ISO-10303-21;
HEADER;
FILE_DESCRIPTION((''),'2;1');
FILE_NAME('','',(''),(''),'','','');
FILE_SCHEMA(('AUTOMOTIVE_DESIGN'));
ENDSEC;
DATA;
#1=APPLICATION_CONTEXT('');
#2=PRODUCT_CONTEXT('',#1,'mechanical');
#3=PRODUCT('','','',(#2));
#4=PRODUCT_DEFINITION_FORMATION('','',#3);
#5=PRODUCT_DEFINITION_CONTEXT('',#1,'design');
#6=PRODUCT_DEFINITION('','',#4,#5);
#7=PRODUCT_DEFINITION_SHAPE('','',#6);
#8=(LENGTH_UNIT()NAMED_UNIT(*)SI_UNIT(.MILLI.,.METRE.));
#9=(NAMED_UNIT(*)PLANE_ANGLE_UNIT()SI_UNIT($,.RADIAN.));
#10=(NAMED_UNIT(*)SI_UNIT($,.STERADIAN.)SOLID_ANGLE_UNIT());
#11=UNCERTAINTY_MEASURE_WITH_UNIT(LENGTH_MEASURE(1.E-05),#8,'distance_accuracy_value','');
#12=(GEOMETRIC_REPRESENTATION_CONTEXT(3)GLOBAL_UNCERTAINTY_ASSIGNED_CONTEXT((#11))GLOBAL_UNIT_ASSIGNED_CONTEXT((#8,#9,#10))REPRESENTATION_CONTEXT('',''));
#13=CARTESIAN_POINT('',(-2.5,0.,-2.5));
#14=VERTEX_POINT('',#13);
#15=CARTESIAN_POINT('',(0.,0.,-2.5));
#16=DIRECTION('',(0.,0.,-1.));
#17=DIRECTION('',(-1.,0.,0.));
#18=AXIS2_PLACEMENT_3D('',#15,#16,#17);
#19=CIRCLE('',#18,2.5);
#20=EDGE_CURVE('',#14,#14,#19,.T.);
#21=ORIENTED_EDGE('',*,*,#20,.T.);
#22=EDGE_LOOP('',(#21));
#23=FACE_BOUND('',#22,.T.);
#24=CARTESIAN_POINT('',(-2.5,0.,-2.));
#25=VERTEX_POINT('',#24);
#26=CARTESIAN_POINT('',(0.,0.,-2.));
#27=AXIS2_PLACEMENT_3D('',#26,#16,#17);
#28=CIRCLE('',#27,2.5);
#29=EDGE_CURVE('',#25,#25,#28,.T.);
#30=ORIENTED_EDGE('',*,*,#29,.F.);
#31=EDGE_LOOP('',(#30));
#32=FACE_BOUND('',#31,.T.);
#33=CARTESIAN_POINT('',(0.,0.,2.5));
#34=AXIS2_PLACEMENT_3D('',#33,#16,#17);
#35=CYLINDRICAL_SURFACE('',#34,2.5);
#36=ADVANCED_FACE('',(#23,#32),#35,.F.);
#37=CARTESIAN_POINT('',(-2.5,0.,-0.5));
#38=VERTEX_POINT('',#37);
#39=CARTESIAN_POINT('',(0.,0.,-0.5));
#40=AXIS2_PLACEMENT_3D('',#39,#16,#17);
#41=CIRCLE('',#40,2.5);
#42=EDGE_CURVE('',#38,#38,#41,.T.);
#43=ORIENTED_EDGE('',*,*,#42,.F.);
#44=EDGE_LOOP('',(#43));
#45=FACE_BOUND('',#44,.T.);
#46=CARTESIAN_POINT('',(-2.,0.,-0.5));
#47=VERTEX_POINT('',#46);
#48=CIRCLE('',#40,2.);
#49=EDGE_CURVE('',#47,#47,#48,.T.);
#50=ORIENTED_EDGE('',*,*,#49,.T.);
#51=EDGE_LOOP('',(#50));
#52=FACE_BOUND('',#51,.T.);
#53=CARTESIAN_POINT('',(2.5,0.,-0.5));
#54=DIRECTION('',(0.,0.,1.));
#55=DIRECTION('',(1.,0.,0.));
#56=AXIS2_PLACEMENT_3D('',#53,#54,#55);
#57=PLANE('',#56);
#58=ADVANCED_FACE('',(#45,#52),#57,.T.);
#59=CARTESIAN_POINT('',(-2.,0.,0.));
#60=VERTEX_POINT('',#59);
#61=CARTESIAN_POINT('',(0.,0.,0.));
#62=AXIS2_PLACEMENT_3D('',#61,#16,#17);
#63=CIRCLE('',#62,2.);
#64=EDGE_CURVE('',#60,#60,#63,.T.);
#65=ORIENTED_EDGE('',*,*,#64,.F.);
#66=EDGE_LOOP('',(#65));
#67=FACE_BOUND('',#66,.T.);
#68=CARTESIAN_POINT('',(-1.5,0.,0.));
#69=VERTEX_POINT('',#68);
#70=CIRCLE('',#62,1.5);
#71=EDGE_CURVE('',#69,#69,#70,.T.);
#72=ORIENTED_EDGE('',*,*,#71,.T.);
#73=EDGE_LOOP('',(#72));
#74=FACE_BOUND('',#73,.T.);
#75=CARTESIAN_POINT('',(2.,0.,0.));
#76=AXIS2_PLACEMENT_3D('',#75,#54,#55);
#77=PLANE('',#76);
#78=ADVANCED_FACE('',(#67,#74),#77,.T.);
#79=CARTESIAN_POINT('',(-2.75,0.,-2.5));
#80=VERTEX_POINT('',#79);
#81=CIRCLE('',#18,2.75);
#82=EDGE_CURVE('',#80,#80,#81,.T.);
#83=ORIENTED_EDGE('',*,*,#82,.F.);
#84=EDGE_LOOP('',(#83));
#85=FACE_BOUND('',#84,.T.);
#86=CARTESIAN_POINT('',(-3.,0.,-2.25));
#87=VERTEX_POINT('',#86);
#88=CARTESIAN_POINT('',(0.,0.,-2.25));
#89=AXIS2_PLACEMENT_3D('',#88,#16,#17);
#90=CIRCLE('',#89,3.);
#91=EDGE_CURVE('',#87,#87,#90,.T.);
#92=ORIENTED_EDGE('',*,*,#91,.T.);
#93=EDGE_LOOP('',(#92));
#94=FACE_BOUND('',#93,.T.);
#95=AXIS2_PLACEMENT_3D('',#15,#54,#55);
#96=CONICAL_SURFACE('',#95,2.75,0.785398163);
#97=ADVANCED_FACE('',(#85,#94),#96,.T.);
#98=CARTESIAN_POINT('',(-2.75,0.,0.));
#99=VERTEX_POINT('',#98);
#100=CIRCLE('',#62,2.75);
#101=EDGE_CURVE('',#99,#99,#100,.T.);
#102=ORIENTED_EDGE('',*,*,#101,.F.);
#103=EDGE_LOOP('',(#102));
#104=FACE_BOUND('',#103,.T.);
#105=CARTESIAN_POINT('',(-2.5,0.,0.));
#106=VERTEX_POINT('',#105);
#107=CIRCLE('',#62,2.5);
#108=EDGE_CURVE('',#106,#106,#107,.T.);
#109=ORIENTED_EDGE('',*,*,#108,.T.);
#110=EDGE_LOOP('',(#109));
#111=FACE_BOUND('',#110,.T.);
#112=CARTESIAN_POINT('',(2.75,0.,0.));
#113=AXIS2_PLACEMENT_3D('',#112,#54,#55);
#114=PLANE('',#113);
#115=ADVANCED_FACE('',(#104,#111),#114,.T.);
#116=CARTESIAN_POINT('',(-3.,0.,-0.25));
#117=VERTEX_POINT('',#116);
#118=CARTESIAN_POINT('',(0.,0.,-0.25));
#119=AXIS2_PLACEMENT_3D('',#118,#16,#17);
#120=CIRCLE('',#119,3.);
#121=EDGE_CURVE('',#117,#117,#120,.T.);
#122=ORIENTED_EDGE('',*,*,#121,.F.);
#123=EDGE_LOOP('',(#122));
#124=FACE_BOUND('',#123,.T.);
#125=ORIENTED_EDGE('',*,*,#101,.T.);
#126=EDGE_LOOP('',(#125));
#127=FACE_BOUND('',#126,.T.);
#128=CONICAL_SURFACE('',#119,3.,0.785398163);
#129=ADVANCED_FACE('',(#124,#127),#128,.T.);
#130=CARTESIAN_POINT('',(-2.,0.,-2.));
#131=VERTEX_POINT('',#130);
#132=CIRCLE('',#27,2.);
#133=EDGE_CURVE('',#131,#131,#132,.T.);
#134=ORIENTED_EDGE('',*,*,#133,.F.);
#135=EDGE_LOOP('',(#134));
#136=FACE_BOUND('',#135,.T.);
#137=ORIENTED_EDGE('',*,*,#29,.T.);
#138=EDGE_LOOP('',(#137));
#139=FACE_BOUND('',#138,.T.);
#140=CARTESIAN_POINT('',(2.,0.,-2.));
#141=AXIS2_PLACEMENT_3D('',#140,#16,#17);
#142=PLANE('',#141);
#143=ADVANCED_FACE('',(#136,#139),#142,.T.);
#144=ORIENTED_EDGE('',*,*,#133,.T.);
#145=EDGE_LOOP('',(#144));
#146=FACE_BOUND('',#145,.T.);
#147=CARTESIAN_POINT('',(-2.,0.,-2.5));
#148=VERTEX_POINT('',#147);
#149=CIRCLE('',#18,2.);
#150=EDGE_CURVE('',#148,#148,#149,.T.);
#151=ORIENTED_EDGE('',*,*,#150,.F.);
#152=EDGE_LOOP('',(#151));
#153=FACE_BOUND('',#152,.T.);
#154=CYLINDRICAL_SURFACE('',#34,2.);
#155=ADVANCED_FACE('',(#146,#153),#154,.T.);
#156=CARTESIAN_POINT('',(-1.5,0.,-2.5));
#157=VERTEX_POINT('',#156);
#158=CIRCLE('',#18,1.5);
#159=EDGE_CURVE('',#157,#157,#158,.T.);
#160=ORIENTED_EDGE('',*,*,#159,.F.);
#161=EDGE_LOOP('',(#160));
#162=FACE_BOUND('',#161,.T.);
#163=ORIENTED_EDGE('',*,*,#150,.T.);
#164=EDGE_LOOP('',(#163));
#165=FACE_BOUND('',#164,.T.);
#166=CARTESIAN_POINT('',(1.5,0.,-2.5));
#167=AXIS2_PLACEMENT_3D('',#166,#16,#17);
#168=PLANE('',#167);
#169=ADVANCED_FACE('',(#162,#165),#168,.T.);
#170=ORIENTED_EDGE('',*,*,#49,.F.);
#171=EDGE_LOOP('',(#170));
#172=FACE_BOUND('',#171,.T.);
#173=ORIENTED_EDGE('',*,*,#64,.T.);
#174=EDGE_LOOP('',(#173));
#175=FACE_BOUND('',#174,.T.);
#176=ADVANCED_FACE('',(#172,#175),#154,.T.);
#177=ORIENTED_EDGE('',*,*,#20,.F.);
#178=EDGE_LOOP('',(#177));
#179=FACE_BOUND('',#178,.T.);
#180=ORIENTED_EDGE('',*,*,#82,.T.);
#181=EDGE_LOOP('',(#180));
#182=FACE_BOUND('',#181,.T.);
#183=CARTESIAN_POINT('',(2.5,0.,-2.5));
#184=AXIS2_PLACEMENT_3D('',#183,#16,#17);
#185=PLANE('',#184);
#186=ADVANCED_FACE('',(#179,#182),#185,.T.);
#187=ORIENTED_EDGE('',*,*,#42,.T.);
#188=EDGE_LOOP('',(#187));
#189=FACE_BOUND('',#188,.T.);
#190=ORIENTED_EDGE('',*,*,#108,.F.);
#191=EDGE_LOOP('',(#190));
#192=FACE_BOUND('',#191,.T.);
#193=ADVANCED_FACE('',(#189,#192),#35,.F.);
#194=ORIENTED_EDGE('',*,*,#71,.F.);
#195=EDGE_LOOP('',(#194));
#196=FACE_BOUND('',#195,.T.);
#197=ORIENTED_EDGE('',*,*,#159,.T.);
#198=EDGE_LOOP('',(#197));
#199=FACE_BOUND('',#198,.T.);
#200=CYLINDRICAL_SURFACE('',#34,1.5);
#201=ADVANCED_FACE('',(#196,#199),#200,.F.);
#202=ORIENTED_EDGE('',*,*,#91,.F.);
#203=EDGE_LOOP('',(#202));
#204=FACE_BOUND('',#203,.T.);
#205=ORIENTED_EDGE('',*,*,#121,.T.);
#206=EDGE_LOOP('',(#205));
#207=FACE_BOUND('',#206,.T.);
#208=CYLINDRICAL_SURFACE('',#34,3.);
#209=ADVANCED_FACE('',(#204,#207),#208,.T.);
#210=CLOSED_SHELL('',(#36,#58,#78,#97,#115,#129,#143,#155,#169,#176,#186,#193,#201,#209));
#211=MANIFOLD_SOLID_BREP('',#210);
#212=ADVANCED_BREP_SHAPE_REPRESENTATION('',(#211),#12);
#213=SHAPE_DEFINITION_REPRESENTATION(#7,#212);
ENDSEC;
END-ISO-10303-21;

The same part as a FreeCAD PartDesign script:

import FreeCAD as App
import Part
import Sketcher

doc = App.newDocument("Part")
body = doc.addObject("PartDesign::Body", "Body")

# Sketch on XZ plane
sketch1 = body.newObject("Sketcher::SketchObject", "Sketch")
sketch1.AttachmentSupport = (doc.getObject("XZ_Plane"), [""])
sketch1.MapMode = "FlatFace"
sketch1.addGeometry(Part.LineSegment(App.Vector(3, -0.25, 0), App.Vector(2.75, 0, 0)), False)
sketch1.addGeometry(Part.LineSegment(App.Vector(2.75, 0, 0), App.Vector(2.5, 0, 0)), False)
sketch1.addGeometry(Part.LineSegment(App.Vector(2.5, 0, 0), App.Vector(2.5, -0.5, 0)), False)
sketch1.addGeometry(Part.LineSegment(App.Vector(2.5, -0.5, 0), App.Vector(2, -0.5, 0)), False)
sketch1.addGeometry(Part.LineSegment(App.Vector(2, -0.5, 0), App.Vector(2, 0, 0)), False)
sketch1.addGeometry(Part.LineSegment(App.Vector(2, 0, 0), App.Vector(1.5, 0, 0)), False)
sketch1.addGeometry(Part.LineSegment(App.Vector(1.5, 0, 0), App.Vector(1.5, -2.5, 0)), False)
sketch1.addGeometry(Part.LineSegment(App.Vector(1.5, -2.5, 0), App.Vector(2, -2.5, 0)), False)
sketch1.addGeometry(Part.LineSegment(App.Vector(2, -2.5, 0), App.Vector(2, -2, 0)), False)
sketch1.addGeometry(Part.LineSegment(App.Vector(2, -2, 0), App.Vector(2.5, -2, 0)), False)
sketch1.addGeometry(Part.LineSegment(App.Vector(2.5, -2, 0), App.Vector(2.5, -2.5, 0)), False)
sketch1.addGeometry(Part.LineSegment(App.Vector(2.5, -2.5, 0), App.Vector(2.75, -2.5, 0)), False)
sketch1.addGeometry(Part.LineSegment(App.Vector(2.75, -2.5, 0), App.Vector(3, -2.25, 0)), False)
sketch1.addGeometry(Part.LineSegment(App.Vector(3, -2.25, 0), App.Vector(3, -0.25, 0)), False)
sketch1.addConstraint(Sketcher.Constraint("Coincident", 0, 2, 1, 1))
sketch1.addConstraint(Sketcher.Constraint("Coincident", 1, 2, 2, 1))
sketch1.addConstraint(Sketcher.Constraint("Coincident", 2, 2, 3, 1))
sketch1.addConstraint(Sketcher.Constraint("Coincident", 3, 2, 4, 1))
sketch1.addConstraint(Sketcher.Constraint("Coincident", 4, 2, 5, 1))
sketch1.addConstraint(Sketcher.Constraint("Coincident", 5, 2, 6, 1))
sketch1.addConstraint(Sketcher.Constraint("Coincident", 6, 2, 7, 1))
sketch1.addConstraint(Sketcher.Constraint("Coincident", 7, 2, 8, 1))
sketch1.addConstraint(Sketcher.Constraint("Coincident", 8, 2, 9, 1))
sketch1.addConstraint(Sketcher.Constraint("Coincident", 9, 2, 10, 1))
sketch1.addConstraint(Sketcher.Constraint("Coincident", 10, 2, 11, 1))
sketch1.addConstraint(Sketcher.Constraint("Coincident", 11, 2, 12, 1))
sketch1.addConstraint(Sketcher.Constraint("Coincident", 12, 2, 13, 1))
sketch1.addConstraint(Sketcher.Constraint("Coincident", 13, 2, 0, 1))
sketch1.addConstraint(Sketcher.Constraint("Horizontal", 1))
sketch1.addConstraint(Sketcher.Constraint("Vertical", 2))
sketch1.addConstraint(Sketcher.Constraint("Horizontal", 3))
sketch1.addConstraint(Sketcher.Constraint("Vertical", 4))
sketch1.addConstraint(Sketcher.Constraint("Horizontal", 5))
sketch1.addConstraint(Sketcher.Constraint("Vertical", 6))
sketch1.addConstraint(Sketcher.Constraint("Horizontal", 7))
sketch1.addConstraint(Sketcher.Constraint("Vertical", 8))
sketch1.addConstraint(Sketcher.Constraint("Horizontal", 9))
sketch1.addConstraint(Sketcher.Constraint("Vertical", 10))
sketch1.addConstraint(Sketcher.Constraint("Horizontal", 11))
sketch1.addConstraint(Sketcher.Constraint("Vertical", 13))
sketch1.addConstraint(Sketcher.Constraint("PointOnObject", 0, 2, -1))
sketch1.addConstraint(Sketcher.Constraint("PointOnObject", 4, 2, -1))
sketch1.addConstraint(Sketcher.Constraint("Perpendicular", 0, 12))
sketch1.addConstraint(Sketcher.Constraint("Horizontal", 7, 2, 10, 2))
sketch1.addConstraint(Sketcher.Constraint("Vertical", 4, 2, 7, 2))
sketch1.addConstraint(Sketcher.Constraint("Vertical", 2, 2, 9, 2))
sketch1.addConstraint(Sketcher.Constraint("Vertical", 0, 2, 11, 2))
sketch1.addConstraint(Sketcher.Constraint("Equal", 3, 5))
sketch1.addConstraint(Sketcher.Constraint("Equal", 9, 2))
sketch1.addConstraint(Sketcher.Constraint("Equal", 4, 8))
sketch1.addConstraint(Sketcher.Constraint("Equal", 0, 12))
sketch1.addConstraint(Sketcher.Constraint("DistanceY", 13, 1, 13, 2, 2.0))
sketch1.addConstraint(Sketcher.Constraint("DistanceX", 3, 2, 3, 1, 0.5))
sketch1.addConstraint(Sketcher.Constraint("DistanceY", 6, 2, 6, 1, 2.5))
sketch1.addConstraint(Sketcher.Constraint("DistanceX", -1, 1, 3, 2, 2.0))
sketch1.addConstraint(Sketcher.Constraint("DistanceX", -1, 1, 12, 2, 3.0))
revolution = body.newObject("PartDesign::Revolution", "Revolution")
revolution.Profile = sketch1
revolution.ReferenceAxis = (sketch1, ["V_Axis"])
revolution.Angle = 360

doc.recompute()
